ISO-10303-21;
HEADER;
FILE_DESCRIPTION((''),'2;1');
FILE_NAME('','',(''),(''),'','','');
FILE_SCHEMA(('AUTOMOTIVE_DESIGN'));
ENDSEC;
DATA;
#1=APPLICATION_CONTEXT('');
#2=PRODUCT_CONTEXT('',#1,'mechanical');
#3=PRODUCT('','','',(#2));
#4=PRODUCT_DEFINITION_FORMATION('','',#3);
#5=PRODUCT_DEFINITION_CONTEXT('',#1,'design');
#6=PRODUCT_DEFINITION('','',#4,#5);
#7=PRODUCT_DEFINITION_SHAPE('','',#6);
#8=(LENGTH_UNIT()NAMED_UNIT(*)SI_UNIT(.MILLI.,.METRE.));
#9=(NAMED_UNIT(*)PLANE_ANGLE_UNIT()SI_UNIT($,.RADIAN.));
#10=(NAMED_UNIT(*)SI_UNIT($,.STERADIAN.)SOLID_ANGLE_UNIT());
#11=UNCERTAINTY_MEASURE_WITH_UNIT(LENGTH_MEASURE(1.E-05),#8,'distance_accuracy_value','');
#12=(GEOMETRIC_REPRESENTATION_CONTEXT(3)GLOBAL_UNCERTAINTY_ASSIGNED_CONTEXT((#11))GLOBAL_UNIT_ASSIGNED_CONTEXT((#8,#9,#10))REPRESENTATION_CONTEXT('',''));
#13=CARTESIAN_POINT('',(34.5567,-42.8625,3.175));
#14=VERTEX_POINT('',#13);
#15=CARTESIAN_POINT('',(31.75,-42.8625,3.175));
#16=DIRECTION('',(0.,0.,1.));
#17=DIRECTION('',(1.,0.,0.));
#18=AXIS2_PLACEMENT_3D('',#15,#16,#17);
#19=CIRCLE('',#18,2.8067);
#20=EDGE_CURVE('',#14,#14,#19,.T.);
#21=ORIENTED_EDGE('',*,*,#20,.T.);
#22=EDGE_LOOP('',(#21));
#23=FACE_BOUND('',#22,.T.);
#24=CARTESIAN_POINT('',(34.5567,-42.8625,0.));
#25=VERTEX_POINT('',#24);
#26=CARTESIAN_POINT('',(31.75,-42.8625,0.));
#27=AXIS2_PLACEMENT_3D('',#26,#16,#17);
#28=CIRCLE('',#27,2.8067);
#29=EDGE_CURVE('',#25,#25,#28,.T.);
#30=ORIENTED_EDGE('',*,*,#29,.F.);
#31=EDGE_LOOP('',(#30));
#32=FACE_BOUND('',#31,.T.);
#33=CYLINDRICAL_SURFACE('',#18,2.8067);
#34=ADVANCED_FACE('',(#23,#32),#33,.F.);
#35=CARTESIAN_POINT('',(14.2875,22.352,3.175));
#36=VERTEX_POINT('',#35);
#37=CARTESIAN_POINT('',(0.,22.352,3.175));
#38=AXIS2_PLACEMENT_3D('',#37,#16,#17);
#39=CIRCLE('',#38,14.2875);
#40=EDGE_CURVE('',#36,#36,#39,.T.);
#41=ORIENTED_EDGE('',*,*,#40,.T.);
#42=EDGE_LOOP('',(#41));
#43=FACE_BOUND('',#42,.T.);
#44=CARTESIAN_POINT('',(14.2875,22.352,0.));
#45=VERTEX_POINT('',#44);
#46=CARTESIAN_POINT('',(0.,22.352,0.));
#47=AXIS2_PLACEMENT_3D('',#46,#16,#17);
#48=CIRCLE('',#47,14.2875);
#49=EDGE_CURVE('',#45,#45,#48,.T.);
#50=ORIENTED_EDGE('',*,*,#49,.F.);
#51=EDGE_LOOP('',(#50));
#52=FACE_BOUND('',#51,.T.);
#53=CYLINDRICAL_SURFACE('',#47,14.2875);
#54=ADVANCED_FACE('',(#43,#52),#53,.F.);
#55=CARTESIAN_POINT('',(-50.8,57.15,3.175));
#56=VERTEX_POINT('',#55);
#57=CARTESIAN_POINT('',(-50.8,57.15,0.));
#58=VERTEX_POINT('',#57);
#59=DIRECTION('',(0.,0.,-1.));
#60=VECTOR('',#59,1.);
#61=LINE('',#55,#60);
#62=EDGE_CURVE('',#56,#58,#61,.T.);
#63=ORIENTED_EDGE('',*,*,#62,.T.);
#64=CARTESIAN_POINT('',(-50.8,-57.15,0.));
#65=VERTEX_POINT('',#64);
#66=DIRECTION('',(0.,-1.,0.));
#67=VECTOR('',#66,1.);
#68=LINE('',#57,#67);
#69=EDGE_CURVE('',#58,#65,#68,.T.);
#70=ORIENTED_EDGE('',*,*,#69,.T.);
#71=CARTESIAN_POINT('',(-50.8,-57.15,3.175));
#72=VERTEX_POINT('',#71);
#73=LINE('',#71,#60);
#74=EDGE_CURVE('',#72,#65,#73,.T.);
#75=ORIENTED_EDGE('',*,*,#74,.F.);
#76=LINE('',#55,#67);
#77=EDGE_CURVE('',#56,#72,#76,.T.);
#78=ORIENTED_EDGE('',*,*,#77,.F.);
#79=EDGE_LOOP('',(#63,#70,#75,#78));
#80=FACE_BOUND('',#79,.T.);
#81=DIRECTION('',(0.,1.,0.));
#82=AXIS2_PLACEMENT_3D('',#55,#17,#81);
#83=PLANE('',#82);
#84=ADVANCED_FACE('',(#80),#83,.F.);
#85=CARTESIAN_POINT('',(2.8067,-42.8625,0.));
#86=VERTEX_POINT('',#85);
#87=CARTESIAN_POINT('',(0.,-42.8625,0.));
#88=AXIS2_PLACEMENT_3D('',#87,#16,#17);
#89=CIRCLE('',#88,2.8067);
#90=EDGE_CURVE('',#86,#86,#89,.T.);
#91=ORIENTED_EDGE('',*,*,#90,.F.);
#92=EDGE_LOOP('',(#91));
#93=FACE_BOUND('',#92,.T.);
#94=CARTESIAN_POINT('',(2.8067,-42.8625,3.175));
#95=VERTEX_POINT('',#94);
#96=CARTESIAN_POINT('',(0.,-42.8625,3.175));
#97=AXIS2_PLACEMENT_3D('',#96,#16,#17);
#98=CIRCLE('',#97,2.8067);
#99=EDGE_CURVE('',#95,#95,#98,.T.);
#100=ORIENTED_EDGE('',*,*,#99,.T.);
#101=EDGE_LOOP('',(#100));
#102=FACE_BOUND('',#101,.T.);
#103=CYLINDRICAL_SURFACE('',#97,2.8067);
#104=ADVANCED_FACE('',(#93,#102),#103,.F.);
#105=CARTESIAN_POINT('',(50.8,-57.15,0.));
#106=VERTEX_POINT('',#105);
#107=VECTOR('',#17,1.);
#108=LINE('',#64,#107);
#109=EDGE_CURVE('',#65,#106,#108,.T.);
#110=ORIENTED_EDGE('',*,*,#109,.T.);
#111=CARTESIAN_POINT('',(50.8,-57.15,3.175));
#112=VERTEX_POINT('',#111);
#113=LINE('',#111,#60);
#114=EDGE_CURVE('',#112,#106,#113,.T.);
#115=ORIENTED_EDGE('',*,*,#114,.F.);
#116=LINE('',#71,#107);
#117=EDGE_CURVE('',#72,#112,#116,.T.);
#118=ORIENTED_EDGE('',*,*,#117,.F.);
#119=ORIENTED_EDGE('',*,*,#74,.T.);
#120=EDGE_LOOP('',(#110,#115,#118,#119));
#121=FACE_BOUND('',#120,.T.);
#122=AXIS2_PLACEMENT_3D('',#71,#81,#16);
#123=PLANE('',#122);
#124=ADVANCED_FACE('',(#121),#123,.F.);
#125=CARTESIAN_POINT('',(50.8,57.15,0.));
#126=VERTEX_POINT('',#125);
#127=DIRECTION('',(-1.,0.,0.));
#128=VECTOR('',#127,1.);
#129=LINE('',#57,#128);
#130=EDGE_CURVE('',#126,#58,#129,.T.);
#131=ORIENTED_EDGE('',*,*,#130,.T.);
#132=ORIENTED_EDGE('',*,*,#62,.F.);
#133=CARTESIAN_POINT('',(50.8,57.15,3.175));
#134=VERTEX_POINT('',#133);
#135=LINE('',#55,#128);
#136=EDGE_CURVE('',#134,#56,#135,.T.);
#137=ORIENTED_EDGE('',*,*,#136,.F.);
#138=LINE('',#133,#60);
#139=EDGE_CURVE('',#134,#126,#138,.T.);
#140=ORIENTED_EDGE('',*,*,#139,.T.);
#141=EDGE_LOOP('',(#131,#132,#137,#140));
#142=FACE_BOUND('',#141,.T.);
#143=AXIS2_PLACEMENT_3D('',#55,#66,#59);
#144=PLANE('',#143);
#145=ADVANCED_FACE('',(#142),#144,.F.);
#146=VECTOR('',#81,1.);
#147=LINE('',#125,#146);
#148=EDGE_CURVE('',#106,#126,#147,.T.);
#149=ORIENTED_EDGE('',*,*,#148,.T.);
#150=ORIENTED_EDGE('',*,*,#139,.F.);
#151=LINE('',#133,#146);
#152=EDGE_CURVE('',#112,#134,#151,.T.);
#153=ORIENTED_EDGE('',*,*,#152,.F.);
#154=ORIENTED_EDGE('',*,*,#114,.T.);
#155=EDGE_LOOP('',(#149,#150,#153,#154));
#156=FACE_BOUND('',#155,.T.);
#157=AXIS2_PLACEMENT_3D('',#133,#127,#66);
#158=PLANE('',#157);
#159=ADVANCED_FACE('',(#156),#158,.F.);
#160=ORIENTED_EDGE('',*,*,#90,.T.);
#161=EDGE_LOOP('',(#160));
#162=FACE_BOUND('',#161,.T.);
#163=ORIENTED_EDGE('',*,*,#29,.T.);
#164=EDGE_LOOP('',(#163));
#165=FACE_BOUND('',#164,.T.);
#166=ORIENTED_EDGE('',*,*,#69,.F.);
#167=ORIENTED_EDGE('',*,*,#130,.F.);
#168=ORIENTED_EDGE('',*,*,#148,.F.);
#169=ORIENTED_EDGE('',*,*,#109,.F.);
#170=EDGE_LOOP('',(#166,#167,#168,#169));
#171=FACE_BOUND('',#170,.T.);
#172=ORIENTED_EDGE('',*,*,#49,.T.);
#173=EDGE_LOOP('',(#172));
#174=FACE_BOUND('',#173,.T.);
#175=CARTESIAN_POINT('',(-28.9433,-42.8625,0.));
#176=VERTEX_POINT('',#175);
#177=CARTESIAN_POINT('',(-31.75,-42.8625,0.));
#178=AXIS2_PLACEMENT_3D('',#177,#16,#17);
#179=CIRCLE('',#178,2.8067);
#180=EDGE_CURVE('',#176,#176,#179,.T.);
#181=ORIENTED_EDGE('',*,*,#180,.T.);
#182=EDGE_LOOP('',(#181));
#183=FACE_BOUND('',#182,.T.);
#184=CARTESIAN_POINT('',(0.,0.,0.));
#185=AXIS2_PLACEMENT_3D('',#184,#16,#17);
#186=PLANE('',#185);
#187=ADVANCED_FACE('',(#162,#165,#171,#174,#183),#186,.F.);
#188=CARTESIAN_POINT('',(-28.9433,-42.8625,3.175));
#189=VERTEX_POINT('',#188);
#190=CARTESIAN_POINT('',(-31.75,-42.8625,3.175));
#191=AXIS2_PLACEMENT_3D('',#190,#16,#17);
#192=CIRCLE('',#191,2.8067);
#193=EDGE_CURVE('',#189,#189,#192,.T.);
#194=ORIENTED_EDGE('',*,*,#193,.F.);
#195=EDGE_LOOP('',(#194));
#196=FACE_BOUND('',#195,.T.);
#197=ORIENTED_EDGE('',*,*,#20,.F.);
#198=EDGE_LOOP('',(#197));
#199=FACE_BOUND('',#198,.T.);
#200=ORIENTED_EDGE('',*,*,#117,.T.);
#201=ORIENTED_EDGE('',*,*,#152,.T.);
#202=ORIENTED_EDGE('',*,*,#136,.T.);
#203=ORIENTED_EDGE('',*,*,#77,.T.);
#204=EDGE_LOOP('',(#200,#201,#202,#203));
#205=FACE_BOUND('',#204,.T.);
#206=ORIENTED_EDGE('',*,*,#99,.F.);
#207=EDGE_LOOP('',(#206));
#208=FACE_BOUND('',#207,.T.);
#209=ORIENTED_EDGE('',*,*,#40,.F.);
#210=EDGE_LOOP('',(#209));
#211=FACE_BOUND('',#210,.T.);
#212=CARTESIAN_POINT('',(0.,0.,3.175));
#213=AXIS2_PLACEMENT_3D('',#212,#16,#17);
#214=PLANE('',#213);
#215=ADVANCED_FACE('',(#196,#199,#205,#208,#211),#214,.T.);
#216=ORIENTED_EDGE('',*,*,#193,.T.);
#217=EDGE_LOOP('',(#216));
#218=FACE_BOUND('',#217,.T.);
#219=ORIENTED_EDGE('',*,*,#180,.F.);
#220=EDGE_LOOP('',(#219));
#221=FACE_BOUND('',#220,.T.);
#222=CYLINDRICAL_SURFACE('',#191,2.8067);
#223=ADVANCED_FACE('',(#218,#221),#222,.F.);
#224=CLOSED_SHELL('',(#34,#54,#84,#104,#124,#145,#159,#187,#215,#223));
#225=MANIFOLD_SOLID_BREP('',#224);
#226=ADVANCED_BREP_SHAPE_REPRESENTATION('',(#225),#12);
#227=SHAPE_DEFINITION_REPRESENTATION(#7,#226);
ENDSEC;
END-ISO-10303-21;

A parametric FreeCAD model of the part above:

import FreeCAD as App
import Part
import Sketcher

V = App.Vector
Q = App.Units.Quantity

doc = App.newDocument("Part")
params = doc.addObject("Spreadsheet::Sheet", "Params")
for row, (alias, value) in enumerate([
    ("sketch1_width", "4 in"),
    ("sketch1_height", "4.5 in"),
    ("pad1_length", "0.125 in"),
    ("sketch2_diameter", "1.125 in"),
    ("pocket1_length", "0.125 in"),
    ("sketch3_diameter", "0.221 in"),
    ("hole_diameter", "0.221 in"),
], start=1):
    params.set(f"A{row}", alias)
    params.set(f"B{row}", "=" + value)
    params.setAlias(f"B{row}", alias)

body = doc.addObject("PartDesign::Body", "Body")

sketch1 = body.newObject("Sketcher::SketchObject", "Sketch")
sketch1.AttachmentSupport = (doc.getObject("XY_Plane"), [""])
sketch1.MapMode = "FlatFace"
sketch1.addGeometry([
    Part.LineSegment(V(-51, 57, 0), V(-51, -57, 0)),
    Part.LineSegment(V(-51, -57, 0), V(51, -57, 0)),
    Part.LineSegment(V(51, -57, 0), V(51, 57, 0)),
    Part.LineSegment(V(51, 57, 0), V(-51, 57, 0)),
], False)
sketch1.addConstraint([
    Sketcher.Constraint("Coincident", 0, 2, 1, 1),
    Sketcher.Constraint("Coincident", 1, 2, 2, 1),
    Sketcher.Constraint("Coincident", 2, 2, 3, 1),
    Sketcher.Constraint("Coincident", 3, 2, 0, 1),
    Sketcher.Constraint("Vertical", 0),
    Sketcher.Constraint("Horizontal", 1),
    Sketcher.Constraint("Vertical", 2),
    Sketcher.Constraint("Horizontal", 3),
    Sketcher.Constraint("Symmetric", 0, 2, 2, 2, -1, 1),
    Sketcher.Constraint("DistanceX", 1, 1, 1, 2, Q("4 in")),
    Sketcher.Constraint("DistanceY", 0, 2, 0, 1, Q("4.5 in")),
])
sketch1.setExpression("Constraints[9]", "Params.sketch1_width")
sketch1.setExpression("Constraints[10]", "Params.sketch1_height")
pad1 = body.newObject("PartDesign::Pad", "Pad")
pad1.Profile = sketch1
pad1.setExpression("Length", "Params.pad1_length")

sketch2 = body.newObject("Sketcher::SketchObject", "Sketch001")
sketch2.AttachmentSupport = (doc.getObject("XY_Plane"), [""])
sketch2.MapMode = "FlatFace"
sketch2.AttachmentOffset = App.Placement(V(0, 0, 0.125 * 25.4), App.Rotation())
sketch2.addGeometry(Part.Circle(V(0, 22, 0), V(0, 0, 1), 14), False)
sketch2.addConstraint([
    Sketcher.Constraint("PointOnObject", 0, 3, -2),
    Sketcher.Constraint("Diameter", 0, Q("1.125 in")),
    Sketcher.Constraint("DistanceY", -1, 1, 0, 3, Q("0.88 in")),
])
sketch2.setExpression("Constraints[1]", "Params.sketch2_diameter")
pocket1 = body.newObject("PartDesign::Pocket", "Pocket")
pocket1.Profile = sketch2
pocket1.setExpression("Length", "Params.pocket1_length")

sketch3 = body.newObject("Sketcher::SketchObject", "Sketch002")
sketch3.AttachmentSupport = (doc.getObject("XY_Plane"), [""])
sketch3.MapMode = "FlatFace"
sketch3.AttachmentOffset = App.Placement(V(0, 0, 0.125 * 25.4), App.Rotation())
sketch3.addGeometry([
    Part.Circle(V(-31.8, -42.9, 0), V(0, 0, 1), 2.8),
    Part.Circle(V(0, -42.9, 0), V(0, 0, 1), 2.8),
    Part.Circle(V(31.8, -42.9, 0), V(0, 0, 1), 2.8),
], False)
sketch3.addConstraint([
    Sketcher.Constraint("Equal", 0, 1),
    Sketcher.Constraint("Equal", 1, 2),
    Sketcher.Constraint("Symmetric", 0, 3, 2, 3, -2),
    Sketcher.Constraint("PointOnObject", 1, 3, -2),
    Sketcher.Constraint("Horizontal", 0, 3, 1, 3),
    Sketcher.Constraint("Diameter", 0, Q("0.221 in")),
    Sketcher.Constraint("DistanceX", 0, 3, 2, 3, Q("2.5 in")),
    Sketcher.Constraint("DistanceY", 0, 3, -1, 1, Q("1.6875 in")),
])
sketch3.setExpression("Constraints[5]", "Params.sketch3_diameter")
doc.recompute()
hole = body.newObject("PartDesign::Hole", "Hole")
hole.Profile = sketch3
hole.ThreadType = "None"
hole.setExpression("Diameter", "Params.hole_diameter")
hole.DepthType = "ThroughAll"

doc.recompute()
